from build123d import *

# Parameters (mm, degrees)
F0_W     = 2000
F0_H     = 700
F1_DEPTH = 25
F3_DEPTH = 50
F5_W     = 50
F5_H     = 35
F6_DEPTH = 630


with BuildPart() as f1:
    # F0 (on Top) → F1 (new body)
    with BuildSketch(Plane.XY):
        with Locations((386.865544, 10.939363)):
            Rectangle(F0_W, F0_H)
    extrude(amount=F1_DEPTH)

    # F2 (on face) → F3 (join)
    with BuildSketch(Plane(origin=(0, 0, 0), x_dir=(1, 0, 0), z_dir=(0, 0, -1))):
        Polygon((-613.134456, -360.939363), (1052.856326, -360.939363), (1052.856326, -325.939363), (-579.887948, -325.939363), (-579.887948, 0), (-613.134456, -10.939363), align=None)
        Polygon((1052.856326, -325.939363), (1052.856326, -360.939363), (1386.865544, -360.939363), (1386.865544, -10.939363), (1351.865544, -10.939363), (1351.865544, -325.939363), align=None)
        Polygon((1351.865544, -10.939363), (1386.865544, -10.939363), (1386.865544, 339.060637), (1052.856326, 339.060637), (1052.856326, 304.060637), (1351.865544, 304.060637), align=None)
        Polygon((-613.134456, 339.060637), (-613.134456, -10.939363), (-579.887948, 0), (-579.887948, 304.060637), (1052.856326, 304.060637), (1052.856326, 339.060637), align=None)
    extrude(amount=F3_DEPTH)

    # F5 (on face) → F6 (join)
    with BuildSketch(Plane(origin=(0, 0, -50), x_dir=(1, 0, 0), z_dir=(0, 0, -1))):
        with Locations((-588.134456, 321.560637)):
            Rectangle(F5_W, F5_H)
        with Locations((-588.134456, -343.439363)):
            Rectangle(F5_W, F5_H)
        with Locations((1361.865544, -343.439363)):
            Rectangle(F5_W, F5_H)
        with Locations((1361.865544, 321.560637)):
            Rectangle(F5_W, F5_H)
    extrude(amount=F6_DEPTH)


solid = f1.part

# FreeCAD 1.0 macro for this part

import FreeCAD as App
import Part
import Sketcher

V = App.Vector

doc = App.newDocument("Part")
body = doc.addObject("PartDesign::Body", "Body")

# Sketch on XY plane
sketch1 = body.newObject("Sketcher::SketchObject", "Sketch")
sketch1.AttachmentSupport = (doc.getObject("XY_Plane"), [""])
sketch1.MapMode = "FlatFace"
sketch1.addGeometry([
    Part.LineSegment(V(-613, 361, 0), V(-613, -339, 0)),
    Part.LineSegment(V(-613, -339, 0), V(1387, -339, 0)),
    Part.LineSegment(V(1387, -339, 0), V(1387, 361, 0)),
    Part.LineSegment(V(1387, 361, 0), V(-613, 361, 0)),
], False)
sketch1.addConstraint([
    Sketcher.Constraint("Coincident", 0, 2, 1, 1),
    Sketcher.Constraint("Coincident", 1, 2, 2, 1),
    Sketcher.Constraint("Coincident", 2, 2, 3, 1),
    Sketcher.Constraint("Coincident", 3, 2, 0, 1),
    Sketcher.Constraint("Vertical", 0),
    Sketcher.Constraint("Horizontal", 1),
    Sketcher.Constraint("Vertical", 2),
    Sketcher.Constraint("Horizontal", 3),
    Sketcher.Constraint("DistanceX", 1, 1, 1, 2, 2000.0),
    Sketcher.Constraint("DistanceY", 0, 2, 0, 1, 700.0),
    Sketcher.Constraint("DistanceX", 0, 2, -1, 1, 613.134456),
    Sketcher.Constraint("DistanceY", 0, 2, -1, 1, 339.060637),
])
pad1 = body.newObject("PartDesign::Pad", "Pad")
pad1.Profile = sketch1
pad1.Length = 25

# Sketch on XY plane
sketch2 = body.newObject("Sketcher::SketchObject", "Sketch001")
sketch2.AttachmentSupport = (doc.getObject("XY_Plane"), [""])
sketch2.MapMode = "FlatFace"
sketch2.addGeometry([
    Part.LineSegment(V(-613, 361, 0), V(1387, 361, 0)),  # 0
    Part.LineSegment(V(1387, 361, 0), V(1387, -339, 0)),  # 1
    Part.LineSegment(V(1387, -339, 0), V(-613, -339, 0)),  # 2
    Part.LineSegment(V(-613, -339, 0), V(-613, 361, 0)),  # 3
    Part.LineSegment(V(1352, -304, 0), V(1352, 326, 0)),  # 4
    Part.LineSegment(V(1352, 326, 0), V(-580, 326, 0)),  # 5
    Part.LineSegment(V(-580, 326, 0), V(-580, -304, 0)),  # 6
    Part.LineSegment(V(-580, -304, 0), V(1352, -304, 0)),  # 7
], False)
sketch2.addConstraint([
    Sketcher.Constraint("Coincident", 0, 2, 1, 1),
    Sketcher.Constraint("Coincident", 1, 2, 2, 1),
    Sketcher.Constraint("Coincident", 2, 2, 3, 1),
    Sketcher.Constraint("Coincident", 3, 2, 0, 1),
    Sketcher.Constraint("Coincident", 4, 2, 5, 1),
    Sketcher.Constraint("Coincident", 5, 2, 6, 1),
    Sketcher.Constraint("Coincident", 6, 2, 7, 1),
    Sketcher.Constraint("Coincident", 7, 2, 4, 1),
    Sketcher.Constraint("Horizontal", 0),
    Sketcher.Constraint("Vertical", 1),
    Sketcher.Constraint("Horizontal", 2),
    Sketcher.Constraint("Vertical", 3),
    Sketcher.Constraint("Vertical", 4),
    Sketcher.Constraint("Horizontal", 5),
    Sketcher.Constraint("Vertical", 6),
    Sketcher.Constraint("Horizontal", 7),
    Sketcher.Constraint("DistanceX", 0, 1, 0, 2, 2000.0),
    Sketcher.Constraint("DistanceY", 1, 2, 1, 1, 700.0),
    Sketcher.Constraint("DistanceY", 4, 1, 4, 2, 630.0),
    Sketcher.Constraint("DistanceX", 4, 2, 0, 2, 35.0),
    Sketcher.Constraint("DistanceY", 4, 2, 0, 2, 35.0),
    Sketcher.Constraint("DistanceX", 5, 2, 5, 1, 1931.753492),
    Sketcher.Constraint("DistanceX", 5, 2, -1, 1, 579.887948),
    Sketcher.Constraint("DistanceY", -1, 1, 0, 2, 360.939363),
])
pad2 = body.newObject("PartDesign::Pad", "Pad001")
pad2.Profile = sketch2
pad2.Length = 50
pad2.Reversed = True

# Sketch on XY plane
sketch3 = body.newObject("Sketcher::SketchObject", "Sketch002")
sketch3.AttachmentSupport = (doc.getObject("XY_Plane"), [""])
sketch3.MapMode = "FlatFace"
sketch3.AttachmentOffset = App.Placement(V(0, 0, -50), App.Rotation())
sketch3.addGeometry([
    Part.LineSegment(V(-613, -339, 0), V(-613, -304, 0)),  # 0
    Part.LineSegment(V(-613, -304, 0), V(-563, -304, 0)),  # 1
    Part.LineSegment(V(-563, -304, 0), V(-563, -339, 0)),  # 2
    Part.LineSegment(V(-563, -339, 0), V(-613, -339, 0)),  # 3
    Part.LineSegment(V(-613, 326, 0), V(-613, 361, 0)),  # 4
    Part.LineSegment(V(-613, 361, 0), V(-563, 361, 0)),  # 5
    Part.LineSegment(V(-563, 361, 0), V(-563, 326, 0)),  # 6
    Part.LineSegment(V(-563, 326, 0), V(-613, 326, 0)),  # 7
    Part.LineSegment(V(1337, 326, 0), V(1337, 361, 0)),  # 8
    Part.LineSegment(V(1337, 361, 0), V(1387, 361, 0)),  # 9
    Part.LineSegment(V(1387, 361, 0), V(1387, 326, 0)),  # 10
    Part.LineSegment(V(1387, 326, 0), V(1337, 326, 0)),  # 11
    Part.LineSegment(V(1337, -339, 0), V(1337, -304, 0)),  # 12
    Part.LineSegment(V(1337, -304, 0), V(1387, -304, 0)),  # 13
    Part.LineSegment(V(1387, -304, 0), V(1387, -339, 0)),  # 14
    Part.LineSegment(V(1387, -339, 0), V(1337, -339, 0)),  # 15
], False)
sketch3.addConstraint([
    Sketcher.Constraint("Coincident", 0, 2, 1, 1),
    Sketcher.Constraint("Coincident", 1, 2, 2, 1),
    Sketcher.Constraint("Coincident", 2, 2, 3, 1),
    Sketcher.Constraint("Coincident", 3, 2, 0, 1),
    Sketcher.Constraint("Coincident", 4, 2, 5, 1),
    Sketcher.Constraint("Coincident", 5, 2, 6, 1),
    Sketcher.Constraint("Coincident", 6, 2, 7, 1),
    Sketcher.Constraint("Coincident", 7, 2, 4, 1),
    Sketcher.Constraint("Coincident", 8, 2, 9, 1),
    Sketcher.Constraint("Coincident", 9, 2, 10, 1),
    Sketcher.Constraint("Coincident", 10, 2, 11, 1),
    Sketcher.Constraint("Coincident", 11, 2, 8, 1),
    Sketcher.Constraint("Coincident", 12, 2, 13, 1),
    Sketcher.Constraint("Coincident", 13, 2, 14, 1),
    Sketcher.Constraint("Coincident", 14, 2, 15, 1),
    Sketcher.Constraint("Coincident", 15, 2, 12, 1),
    Sketcher.Constraint("Vertical", 0),
    Sketcher.Constraint("Horizontal", 1),
    Sketcher.Constraint("Vertical", 2),
    Sketcher.Constraint("Horizontal", 3),
    Sketcher.Constraint("Vertical", 4),
    Sketcher.Constraint("Horizontal", 5),
    Sketcher.Constraint("Vertical", 6),
    Sketcher.Constraint("Horizontal", 7),
    Sketcher.Constraint("Vertical", 8),
    Sketcher.Constraint("Horizontal", 9),
    Sketcher.Constraint("Vertical", 10),
    Sketcher.Constraint("Horizontal", 11),
    Sketcher.Constraint("Vertical", 12),
    Sketcher.Constraint("Horizontal", 13),
    Sketcher.Constraint("Vertical", 14),
    Sketcher.Constraint("Horizontal", 15),
    Sketcher.Constraint("Horizontal", 5, 2, 8, 2),
    Sketcher.Constraint("Horizontal", 7, 2, 10, 2),
    Sketcher.Constraint("Horizontal", 1, 2, 12, 2),
    Sketcher.Constraint("Horizontal", 3, 2, 14, 2),
    Sketcher.Constraint("Vertical", 3, 2, 4, 2),
    Sketcher.Constraint("Vertical", 2, 2, 5, 2),
    Sketcher.Constraint("Vertical", 11, 2, 12, 2),
    Sketcher.Constraint("Vertical", 10, 2, 13, 2),
    Sketcher.Constraint("Equal", 7, 9),
    Sketcher.Constraint("Equal", 2, 4),
    Sketcher.Constraint("DistanceX", 1, 1, 1, 2, 50.0),
    Sketcher.Constraint("DistanceY", 0, 1, 0, 2, 35.0),
    Sketcher.Constraint("DistanceY", 0, 2, 4, 2, 665.0),
    Sketcher.Constraint("DistanceX", 5, 2, 8, 2, 1900.0),
    Sketcher.Constraint("DistanceX", 0, 2, -1, 1, 613.134456),
    Sketcher.Constraint("DistanceY", 0, 2, -1, 1, 304.060637),
])
pad3 = body.newObject("PartDesign::Pad", "Pad002")
pad3.Profile = sketch3
pad3.Length = 630
pad3.Reversed = True

doc.recompute()
